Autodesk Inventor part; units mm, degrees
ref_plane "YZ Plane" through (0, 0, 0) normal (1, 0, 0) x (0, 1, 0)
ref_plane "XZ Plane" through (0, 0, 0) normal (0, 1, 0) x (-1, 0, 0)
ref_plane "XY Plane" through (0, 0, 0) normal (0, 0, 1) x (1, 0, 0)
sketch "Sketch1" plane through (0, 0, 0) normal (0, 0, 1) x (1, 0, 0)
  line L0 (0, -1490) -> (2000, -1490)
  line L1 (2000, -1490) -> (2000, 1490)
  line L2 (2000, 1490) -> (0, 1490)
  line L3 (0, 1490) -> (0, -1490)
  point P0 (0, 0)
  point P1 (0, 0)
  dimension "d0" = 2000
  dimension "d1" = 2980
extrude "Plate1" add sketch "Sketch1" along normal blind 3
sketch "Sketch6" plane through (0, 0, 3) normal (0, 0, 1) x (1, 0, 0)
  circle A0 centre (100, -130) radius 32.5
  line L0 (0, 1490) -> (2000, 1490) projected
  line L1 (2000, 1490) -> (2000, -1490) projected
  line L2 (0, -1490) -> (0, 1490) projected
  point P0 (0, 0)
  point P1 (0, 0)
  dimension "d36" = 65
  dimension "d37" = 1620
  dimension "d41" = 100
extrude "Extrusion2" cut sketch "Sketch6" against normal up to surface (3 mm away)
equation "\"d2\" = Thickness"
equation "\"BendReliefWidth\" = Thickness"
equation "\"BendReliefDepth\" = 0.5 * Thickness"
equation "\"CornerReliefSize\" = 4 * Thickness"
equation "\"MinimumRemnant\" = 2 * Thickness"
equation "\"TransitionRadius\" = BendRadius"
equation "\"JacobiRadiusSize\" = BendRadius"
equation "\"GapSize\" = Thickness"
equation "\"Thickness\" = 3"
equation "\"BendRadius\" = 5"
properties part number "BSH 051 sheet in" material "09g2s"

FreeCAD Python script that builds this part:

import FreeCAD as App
import Part
import Sketcher


def add_polygon(sketch, points):
    """Adds a closed chain of lines whose ends are joined by coincident constraints."""
    first, n = sketch.GeometryCount, len(points)
    for a, b in zip(points, points[1:] + points[:1]):
        sketch.addGeometry(Part.LineSegment(App.Vector(*a, 0), App.Vector(*b, 0)), False)
    for i in range(n):
        sketch.addConstraint(Sketcher.Constraint("Coincident", first + i, 2, first + (i + 1) % n, 1))

doc = App.newDocument("Part")
body = doc.addObject("PartDesign::Body", "Body")

# Sketch on XY plane
sketch1 = body.newObject("Sketcher::SketchObject", "Sketch")
sketch1.AttachmentSupport = (doc.getObject("XY_Plane"), [""])
sketch1.MapMode = "FlatFace"
add_polygon(sketch1, [(0, 1490), (0, -1490), (2000, -1490), (2000, 1490)])  # lines 0-3
sketch1.addConstraint(Sketcher.Constraint("Vertical", 0))
sketch1.addConstraint(Sketcher.Constraint("Horizontal", 1))
sketch1.addConstraint(Sketcher.Constraint("Vertical", 2))
sketch1.addConstraint(Sketcher.Constraint("Horizontal", 3))
sketch1.addConstraint(Sketcher.Constraint("Symmetric", 0, 2, 3, 2, -1, 1))
sketch1.addConstraint(Sketcher.Constraint("DistanceX", 1, 1, 1, 2, 2000.0))
sketch1.addConstraint(Sketcher.Constraint("DistanceY", 0, 2, 0, 1, 2980.0))
pad1 = body.newObject("PartDesign::Pad", "Pad")
pad1.Profile = sketch1
pad1.Length = 3

# Sketch on XY plane
sketch2 = body.newObject("Sketcher::SketchObject", "Sketch001")
sketch2.AttachmentSupport = (doc.getObject("XY_Plane"), [""])
sketch2.MapMode = "FlatFace"
sketch2.AttachmentOffset = App.Placement(App.Vector(0, 0, 3), App.Rotation())
sketch2.addGeometry(Part.Circle(App.Vector(100, -130, 0), App.Vector(0, 0, 1), 32), False)
sketch2.addConstraint(Sketcher.Constraint("Diameter", 0, 65.0))
sketch2.addConstraint(Sketcher.Constraint("DistanceX", -1, 1, 0, 3, 100.0))
sketch2.addConstraint(Sketcher.Constraint("DistanceY", 0, 3, -1, 1, 130.0))
pocket1 = body.newObject("PartDesign::Pocket", "Pocket")
pocket1.Profile = sketch2
pocket1.Length = 3

doc.recompute()
